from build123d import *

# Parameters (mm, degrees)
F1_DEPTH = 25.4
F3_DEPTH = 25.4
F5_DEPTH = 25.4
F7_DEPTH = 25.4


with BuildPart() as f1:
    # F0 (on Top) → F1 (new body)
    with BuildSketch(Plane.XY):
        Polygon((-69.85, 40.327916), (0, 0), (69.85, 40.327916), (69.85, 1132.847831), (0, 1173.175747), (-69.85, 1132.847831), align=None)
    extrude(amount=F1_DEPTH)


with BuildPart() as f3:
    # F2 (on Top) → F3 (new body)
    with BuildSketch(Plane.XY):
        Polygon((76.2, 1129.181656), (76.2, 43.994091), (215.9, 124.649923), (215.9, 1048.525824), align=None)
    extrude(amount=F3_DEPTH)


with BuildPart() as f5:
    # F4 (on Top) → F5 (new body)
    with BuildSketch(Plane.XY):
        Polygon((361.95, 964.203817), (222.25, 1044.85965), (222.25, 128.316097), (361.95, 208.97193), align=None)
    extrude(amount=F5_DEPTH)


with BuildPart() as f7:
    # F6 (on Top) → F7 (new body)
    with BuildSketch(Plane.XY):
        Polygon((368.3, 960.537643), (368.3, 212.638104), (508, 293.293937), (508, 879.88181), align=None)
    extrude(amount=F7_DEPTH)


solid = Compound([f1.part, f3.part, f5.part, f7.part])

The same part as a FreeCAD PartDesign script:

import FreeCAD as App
import Part
import Sketcher

V = App.Vector
Q = App.Units.Quantity

doc = App.newDocument("Part")
params = doc.addObject("Spreadsheet::Sheet", "Params")
for row, (alias, value) in enumerate([
    ("pad1_length", "1 in"),
    ("pad2_length", "1 in"),
    ("pad3_length", "1 in"),
    ("pad4_length", "1 in"),
], start=1):
    params.set(f"A{row}", alias)
    params.set(f"B{row}", "=" + value)
    params.setAlias(f"B{row}", alias)

body = doc.addObject("PartDesign::Body", "Body")

# Sketch on XY plane
sketch1 = body.newObject("Sketcher::SketchObject", "Sketch")
sketch1.AttachmentSupport = (doc.getObject("XY_Plane"), [""])
sketch1.MapMode = "FlatFace"
sketch1.addGeometry([
    Part.LineSegment(V(-70, 40, 0), V(0, 0, 0)),  # 0
    Part.LineSegment(V(0, 0, 0), V(70, 40, 0)),  # 1
    Part.LineSegment(V(70, 40, 0), V(70, 1133, 0)),  # 2
    Part.LineSegment(V(70, 1133, 0), V(0, 1173, 0)),  # 3
    Part.LineSegment(V(0, 1173, 0), V(-70, 1133, 0)),  # 4
    Part.LineSegment(V(-70, 1133, 0), V(-70, 40, 0)),  # 5
], False)
sketch1.addConstraint([
    Sketcher.Constraint("Coincident", 0, 2, 1, 1),
    Sketcher.Constraint("Coincident", 1, 2, 2, 1),
    Sketcher.Constraint("Coincident", 2, 2, 3, 1),
    Sketcher.Constraint("Coincident", 3, 2, 4, 1),
    Sketcher.Constraint("Coincident", 4, 2, 5, 1),
    Sketcher.Constraint("Coincident", 5, 2, 0, 1),
    Sketcher.Constraint("Vertical", 2),
    Sketcher.Constraint("Vertical", 5),
    Sketcher.Constraint("Coincident", 0, 2, -1, 1),
    Sketcher.Constraint("Symmetric", 2, 2, 4, 2, -2),
    Sketcher.Constraint("PointOnObject", 3, 2, -2),
    Sketcher.Constraint("Parallel", 0, 3),
    Sketcher.Constraint("Parallel", 1, 4),
    Sketcher.Constraint("Angle", 0, Q("-30 deg")),
    Sketcher.Constraint("DistanceX", 4, 2, 2, 2, Q("5.5 in")),
    Sketcher.Constraint("DistanceY", 2, 1, 2, 2, 1092.519915),
])
pad1 = body.newObject("PartDesign::Pad", "Pad")
pad1.Profile = sketch1
pad1.setExpression("Length", "Params.pad1_length")
body2 = doc.addObject("PartDesign::Body", "Body001")

# Sketch on XY plane
sketch2 = body2.newObject("Sketcher::SketchObject", "Sketch001")
sketch2.AttachmentSupport = (doc.getObject("XY_Plane001"), [""])
sketch2.MapMode = "FlatFace"
sketch2.addGeometry([
    Part.LineSegment(V(76, 1129, 0), V(76, 44, 0)),
    Part.LineSegment(V(76, 44, 0), V(216, 125, 0)),
    Part.LineSegment(V(216, 125, 0), V(216, 1049, 0)),
    Part.LineSegment(V(216, 1049, 0), V(76, 1129, 0)),
], False)
sketch2.addConstraint([
    Sketcher.Constraint("Coincident", 0, 2, 1, 1),
    Sketcher.Constraint("Coincident", 1, 2, 2, 1),
    Sketcher.Constraint("Coincident", 2, 2, 3, 1),
    Sketcher.Constraint("Coincident", 3, 2, 0, 1),
    Sketcher.Constraint("Vertical", 0),
    Sketcher.Constraint("Vertical", 2),
    Sketcher.Constraint("Equal", 1, 3),
    Sketcher.Constraint("DistanceX", -1, 1, 0, 2, Q("3 in")),
    Sketcher.Constraint("Angle", 1, Q("30 deg")),
    Sketcher.Constraint("DistanceX", -1, 1, 1, 2, Q("8.5 in")),
    Sketcher.Constraint("DistanceY", 2, 1, 2, 2, 923.875901),
    Sketcher.Constraint("DistanceY", -1, 1, 0, 2, 43.994091),
])
pad2 = body2.newObject("PartDesign::Pad", "Pad001")
pad2.Profile = sketch2
pad2.setExpression("Length", "Params.pad2_length")
body3 = doc.addObject("PartDesign::Body", "Body002")

# Sketch on XY plane
sketch3 = body3.newObject("Sketcher::SketchObject", "Sketch002")
sketch3.AttachmentSupport = (doc.getObject("XY_Plane002"), [""])
sketch3.MapMode = "FlatFace"
sketch3.addGeometry([
    Part.LineSegment(V(362, 964, 0), V(222, 1045, 0)),
    Part.LineSegment(V(222, 1045, 0), V(222, 128, 0)),
    Part.LineSegment(V(222, 128, 0), V(362, 209, 0)),
    Part.LineSegment(V(362, 209, 0), V(362, 964, 0)),
], False)
sketch3.addConstraint([
    Sketcher.Constraint("Coincident", 0, 2, 1, 1),
    Sketcher.Constraint("Coincident", 1, 2, 2, 1),
    Sketcher.Constraint("Coincident", 2, 2, 3, 1),
    Sketcher.Constraint("Coincident", 3, 2, 0, 1),
    Sketcher.Constraint("Vertical", 1),
    Sketcher.Constraint("Vertical", 3),
    Sketcher.Constraint("Equal", 0, 2),
    Sketcher.Constraint("Angle", 0, Q("150 deg")),
    Sketcher.Constraint("DistanceX", 1, 2, 2, 2, Q("5.5 in")),
    Sketcher.Constraint("DistanceX", -1, 1, 0, 2, Q("8.75 in")),
    Sketcher.Constraint("DistanceY", 1, 2, 1, 1, 916.543553),
    Sketcher.Constraint("DistanceY", -1, 1, 0, 2, 1044.85965),
])
pad3 = body3.newObject("PartDesign::Pad", "Pad002")
pad3.Profile = sketch3
pad3.setExpression("Length", "Params.pad3_length")
body4 = doc.addObject("PartDesign::Body", "Body003")

# Sketch on XY plane
sketch4 = body4.newObject("Sketcher::SketchObject", "Sketch003")
sketch4.AttachmentSupport = (doc.getObject("XY_Plane003"), [""])
sketch4.MapMode = "FlatFace"
sketch4.addGeometry([
    Part.LineSegment(V(368, 961, 0), V(368, 213, 0)),
    Part.LineSegment(V(368, 213, 0), V(508, 293, 0)),
    Part.LineSegment(V(508, 293, 0), V(508, 880, 0)),
    Part.LineSegment(V(508, 880, 0), V(368, 961, 0)),
], False)
sketch4.addConstraint([
    Sketcher.Constraint("Coincident", 0, 2, 1, 1),
    Sketcher.Constraint("Coincident", 1, 2, 2, 1),
    Sketcher.Constraint("Coincident", 2, 2, 3, 1),
    Sketcher.Constraint("Coincident", 3, 2, 0, 1),
    Sketcher.Constraint("Vertical", 0),
    Sketcher.Constraint("Vertical", 2),
    Sketcher.Constraint("Equal", 1, 3),
    Sketcher.Constraint("DistanceX", -1, 1, 1, 2, Q("20 in")),
    Sketcher.Constraint("Angle", 1, Q("30 deg")),
    Sketcher.Constraint("DistanceX", -1, 1, 0, 2, Q("14.5 in")),
    Sketcher.Constraint("DistanceY", 0, 2, 0, 1, 747.899539),
    Sketcher.Constraint("DistanceY", -1, 1, 2, 2, 879.88181),
])
pad4 = body4.newObject("PartDesign::Pad", "Pad003")
pad4.Profile = sketch4
pad4.setExpression("Length", "Params.pad4_length")

doc.recompute()
